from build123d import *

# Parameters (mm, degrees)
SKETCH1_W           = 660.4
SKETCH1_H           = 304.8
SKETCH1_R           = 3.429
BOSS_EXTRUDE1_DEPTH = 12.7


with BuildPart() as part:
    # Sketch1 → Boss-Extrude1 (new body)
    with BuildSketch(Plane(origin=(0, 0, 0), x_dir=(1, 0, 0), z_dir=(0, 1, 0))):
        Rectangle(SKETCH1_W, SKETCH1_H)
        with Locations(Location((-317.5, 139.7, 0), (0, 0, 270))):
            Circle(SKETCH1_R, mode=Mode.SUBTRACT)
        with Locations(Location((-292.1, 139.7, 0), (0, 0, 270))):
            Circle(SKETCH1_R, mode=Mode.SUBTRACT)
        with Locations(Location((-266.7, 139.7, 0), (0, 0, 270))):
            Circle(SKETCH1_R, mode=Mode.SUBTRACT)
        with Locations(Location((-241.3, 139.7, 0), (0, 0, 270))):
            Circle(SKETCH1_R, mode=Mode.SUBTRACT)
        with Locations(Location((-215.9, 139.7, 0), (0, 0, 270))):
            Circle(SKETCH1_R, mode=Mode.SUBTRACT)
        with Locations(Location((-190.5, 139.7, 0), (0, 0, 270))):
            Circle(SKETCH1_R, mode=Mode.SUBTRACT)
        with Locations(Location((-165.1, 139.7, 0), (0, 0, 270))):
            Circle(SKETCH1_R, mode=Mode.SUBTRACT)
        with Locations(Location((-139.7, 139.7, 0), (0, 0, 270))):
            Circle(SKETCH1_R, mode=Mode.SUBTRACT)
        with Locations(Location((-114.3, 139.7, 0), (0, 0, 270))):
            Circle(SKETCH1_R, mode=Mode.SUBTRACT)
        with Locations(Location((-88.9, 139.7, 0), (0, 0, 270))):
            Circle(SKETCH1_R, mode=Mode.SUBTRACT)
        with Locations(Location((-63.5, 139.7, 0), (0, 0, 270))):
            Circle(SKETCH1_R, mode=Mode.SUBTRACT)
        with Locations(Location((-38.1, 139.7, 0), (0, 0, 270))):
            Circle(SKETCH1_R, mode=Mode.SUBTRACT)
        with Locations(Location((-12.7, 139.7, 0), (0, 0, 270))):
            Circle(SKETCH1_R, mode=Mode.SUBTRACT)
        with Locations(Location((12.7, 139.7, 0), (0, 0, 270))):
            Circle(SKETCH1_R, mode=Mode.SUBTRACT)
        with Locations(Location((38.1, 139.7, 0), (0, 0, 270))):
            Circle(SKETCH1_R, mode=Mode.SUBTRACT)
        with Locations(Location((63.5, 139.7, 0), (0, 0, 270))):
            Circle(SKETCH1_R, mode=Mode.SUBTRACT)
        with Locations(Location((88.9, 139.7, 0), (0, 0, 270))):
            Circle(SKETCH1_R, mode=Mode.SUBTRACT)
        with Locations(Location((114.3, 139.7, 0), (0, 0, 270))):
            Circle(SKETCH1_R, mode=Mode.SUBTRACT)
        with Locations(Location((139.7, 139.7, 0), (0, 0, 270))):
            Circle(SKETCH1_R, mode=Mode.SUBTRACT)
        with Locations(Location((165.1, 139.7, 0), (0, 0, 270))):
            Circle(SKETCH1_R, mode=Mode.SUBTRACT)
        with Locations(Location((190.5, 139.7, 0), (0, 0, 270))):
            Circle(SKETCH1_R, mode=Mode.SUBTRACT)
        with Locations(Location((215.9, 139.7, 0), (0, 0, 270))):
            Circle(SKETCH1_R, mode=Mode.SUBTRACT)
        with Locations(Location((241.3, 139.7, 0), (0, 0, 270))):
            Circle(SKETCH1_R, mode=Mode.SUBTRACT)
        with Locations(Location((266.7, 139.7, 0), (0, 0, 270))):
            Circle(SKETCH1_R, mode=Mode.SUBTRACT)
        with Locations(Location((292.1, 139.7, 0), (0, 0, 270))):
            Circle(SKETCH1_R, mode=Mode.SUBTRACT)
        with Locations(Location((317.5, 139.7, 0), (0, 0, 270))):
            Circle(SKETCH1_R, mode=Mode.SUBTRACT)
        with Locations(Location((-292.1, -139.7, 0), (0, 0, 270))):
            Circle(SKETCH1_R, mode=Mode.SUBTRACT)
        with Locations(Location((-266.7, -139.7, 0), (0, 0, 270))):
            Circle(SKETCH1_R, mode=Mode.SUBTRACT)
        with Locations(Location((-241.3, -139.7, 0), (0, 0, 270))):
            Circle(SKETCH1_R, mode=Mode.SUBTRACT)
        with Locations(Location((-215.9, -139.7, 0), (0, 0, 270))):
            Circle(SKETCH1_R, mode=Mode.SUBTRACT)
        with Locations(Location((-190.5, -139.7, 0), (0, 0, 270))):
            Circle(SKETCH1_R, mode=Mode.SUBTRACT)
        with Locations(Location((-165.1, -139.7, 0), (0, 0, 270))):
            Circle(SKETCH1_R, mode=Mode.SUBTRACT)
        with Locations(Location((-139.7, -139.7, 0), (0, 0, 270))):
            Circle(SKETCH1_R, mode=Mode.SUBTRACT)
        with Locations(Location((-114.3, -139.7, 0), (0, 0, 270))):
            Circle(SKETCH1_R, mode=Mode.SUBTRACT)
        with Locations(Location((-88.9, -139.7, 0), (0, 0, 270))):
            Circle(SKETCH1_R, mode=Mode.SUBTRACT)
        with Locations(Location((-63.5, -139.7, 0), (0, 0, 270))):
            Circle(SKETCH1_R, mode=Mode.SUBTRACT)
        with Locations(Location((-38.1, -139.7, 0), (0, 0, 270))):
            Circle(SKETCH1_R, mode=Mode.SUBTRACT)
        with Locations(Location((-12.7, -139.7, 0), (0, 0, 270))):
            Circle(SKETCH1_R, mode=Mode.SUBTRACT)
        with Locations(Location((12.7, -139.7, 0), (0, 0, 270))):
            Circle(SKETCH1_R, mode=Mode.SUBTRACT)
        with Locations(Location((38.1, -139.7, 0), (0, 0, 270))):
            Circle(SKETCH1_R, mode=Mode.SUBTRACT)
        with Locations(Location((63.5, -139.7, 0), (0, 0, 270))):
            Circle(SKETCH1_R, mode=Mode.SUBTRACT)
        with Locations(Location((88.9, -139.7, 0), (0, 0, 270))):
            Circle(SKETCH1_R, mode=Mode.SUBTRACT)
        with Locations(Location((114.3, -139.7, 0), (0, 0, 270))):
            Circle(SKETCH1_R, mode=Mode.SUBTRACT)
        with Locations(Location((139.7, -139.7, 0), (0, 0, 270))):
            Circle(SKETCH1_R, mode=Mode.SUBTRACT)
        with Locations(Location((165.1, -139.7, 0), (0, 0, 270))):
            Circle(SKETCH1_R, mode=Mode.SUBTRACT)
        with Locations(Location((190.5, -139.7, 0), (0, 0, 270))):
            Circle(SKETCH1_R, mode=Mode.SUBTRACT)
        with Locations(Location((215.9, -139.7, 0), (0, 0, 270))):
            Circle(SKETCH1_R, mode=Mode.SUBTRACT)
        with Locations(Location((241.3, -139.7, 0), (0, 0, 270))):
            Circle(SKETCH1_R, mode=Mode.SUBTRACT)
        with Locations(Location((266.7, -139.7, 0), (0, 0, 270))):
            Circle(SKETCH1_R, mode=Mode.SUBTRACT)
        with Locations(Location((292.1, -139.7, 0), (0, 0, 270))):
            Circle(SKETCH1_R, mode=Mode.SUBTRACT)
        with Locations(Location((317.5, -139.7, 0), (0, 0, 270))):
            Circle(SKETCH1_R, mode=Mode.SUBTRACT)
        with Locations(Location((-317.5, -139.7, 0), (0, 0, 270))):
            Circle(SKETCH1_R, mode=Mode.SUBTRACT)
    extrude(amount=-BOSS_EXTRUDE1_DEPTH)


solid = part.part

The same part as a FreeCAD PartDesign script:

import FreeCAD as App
import Part
import Sketcher
from FreeCAD import Vector
Q = App.Units.Quantity


def add_polygon(sketch, points):
    """Adds a closed chain of lines whose ends are joined by coincident constraints."""
    first, n = sketch.GeometryCount, len(points)
    for a, b in zip(points, points[1:] + points[:1]):
        sketch.addGeometry(Part.LineSegment(App.Vector(*a, 0), App.Vector(*b, 0)), False)
    for i in range(n):
        sketch.addConstraint(Sketcher.Constraint("Coincident", first + i, 2, first + (i + 1) % n, 1))

doc = App.newDocument("Part")
params = doc.addObject("Spreadsheet::Sheet", "Params")
for row, (alias, value) in enumerate([
    ("sketch1_diameter", "0.27 in"),
    ("sketch1_width", "26 in"),
    ("sketch1_height", "12 in"),
    ("pad1_length", "0.5 in"),
], start=1):
    params.set(f"A{row}", alias)
    params.set(f"B{row}", "=" + value)
    params.setAlias(f"B{row}", alias)

body = doc.addObject("PartDesign::Body", "Body")

sketch1 = body.newObject("Sketcher::SketchObject", "Sketch")
sketch1.AttachmentSupport = (doc.getObject("XZ_Plane"), [""])
sketch1.MapMode = "FlatFace"
add_polygon(sketch1, [(-330.2, -152.4), (-330.2, 152.4), (330.2, 152.4), (330.2, -152.4)])
sketch1.addGeometry(Part.Circle(Vector(-317.5, 139.7, 0), Vector(0, 0, 1), 3.4), False)
sketch1.addGeometry(Part.Circle(Vector(-292.1, 139.7, 0), Vector(0, 0, 1), 3.4), False)
sketch1.addGeometry(Part.Circle(Vector(-266.7, 139.7, 0), Vector(0, 0, 1), 3.4), False)
sketch1.addGeometry(Part.Circle(Vector(-241.3, 139.7, 0), Vector(0, 0, 1), 3.4), False)
sketch1.addGeometry(Part.Circle(Vector(-215.9, 139.7, 0), Vector(0, 0, 1), 3.4), False)
sketch1.addGeometry(Part.Circle(Vector(-190.5, 139.7, 0), Vector(0, 0, 1), 3.4), False)
sketch1.addGeometry(Part.Circle(Vector(-165.1, 139.7, 0), Vector(0, 0, 1), 3.4), False)
sketch1.addGeometry(Part.Circle(Vector(-139.7, 139.7, 0), Vector(0, 0, 1), 3.4), False)
sketch1.addGeometry(Part.Circle(Vector(-114.3, 139.7, 0), Vector(0, 0, 1), 3.4), False)
sketch1.addGeometry(Part.Circle(Vector(-88.9, 139.7, 0), Vector(0, 0, 1), 3.4), False)
sketch1.addGeometry(Part.Circle(Vector(-63.5, 139.7, 0), Vector(0, 0, 1), 3.4), False)
sketch1.addGeometry(Part.Circle(Vector(-38.1, 139.7, 0), Vector(0, 0, 1), 3.4), False)
sketch1.addGeometry(Part.Circle(Vector(-12.7, 139.7, 0), Vector(0, 0, 1), 3.4), False)
sketch1.addGeometry(Part.Circle(Vector(12.7, 139.7, 0), Vector(0, 0, 1), 3.4), False)
sketch1.addGeometry(Part.Circle(Vector(38.1, 139.7, 0), Vector(0, 0, 1), 3.4), False)
sketch1.addGeometry(Part.Circle(Vector(63.5, 139.7, 0), Vector(0, 0, 1), 3.4), False)
sketch1.addGeometry(Part.Circle(Vector(88.9, 139.7, 0), Vector(0, 0, 1), 3.4), False)
sketch1.addGeometry(Part.Circle(Vector(114.3, 139.7, 0), Vector(0, 0, 1), 3.4), False)
sketch1.addGeometry(Part.Circle(Vector(139.7, 139.7, 0), Vector(0, 0, 1), 3.4), False)
sketch1.addGeometry(Part.Circle(Vector(165.1, 139.7, 0), Vector(0, 0, 1), 3.4), False)
sketch1.addGeometry(Part.Circle(Vector(190.5, 139.7, 0), Vector(0, 0, 1), 3.4), False)
sketch1.addGeometry(Part.Circle(Vector(215.9, 139.7, 0), Vector(0, 0, 1), 3.4), False)
sketch1.addGeometry(Part.Circle(Vector(241.3, 139.7, 0), Vector(0, 0, 1), 3.4), False)
sketch1.addGeometry(Part.Circle(Vector(266.7, 139.7, 0), Vector(0, 0, 1), 3.4), False)
sketch1.addGeometry(Part.Circle(Vector(292.1, 139.7, 0), Vector(0, 0, 1), 3.4), False)
sketch1.addGeometry(Part.Circle(Vector(317.5, 139.7, 0), Vector(0, 0, 1), 3.4), False)
sketch1.addGeometry(Part.Circle(Vector(-317.5, -139.7, 0), Vector(0, 0, 1), 3.4), False)
sketch1.addGeometry(Part.Circle(Vector(-292.1, -139.7, 0), Vector(0, 0, 1), 3.4), False)
sketch1.addGeometry(Part.Circle(Vector(-266.7, -139.7, 0), Vector(0, 0, 1), 3.4), False)
sketch1.addGeometry(Part.Circle(Vector(-241.3, -139.7, 0), Vector(0, 0, 1), 3.4), False)
sketch1.addGeometry(Part.Circle(Vector(-215.9, -139.7, 0), Vector(0, 0, 1), 3.4), False)
sketch1.addGeometry(Part.Circle(Vector(-190.5, -139.7, 0), Vector(0, 0, 1), 3.4), False)
sketch1.addGeometry(Part.Circle(Vector(-165.1, -139.7, 0), Vector(0, 0, 1), 3.4), False)
sketch1.addGeometry(Part.Circle(Vector(-139.7, -139.7, 0), Vector(0, 0, 1), 3.4), False)
sketch1.addGeometry(Part.Circle(Vector(-114.3, -139.7, 0), Vector(0, 0, 1), 3.4), False)
sketch1.addGeometry(Part.Circle(Vector(-88.9, -139.7, 0), Vector(0, 0, 1), 3.4), False)
sketch1.addGeometry(Part.Circle(Vector(-63.5, -139.7, 0), Vector(0, 0, 1), 3.4), False)
sketch1.addGeometry(Part.Circle(Vector(-38.1, -139.7, 0), Vector(0, 0, 1), 3.4), False)
sketch1.addGeometry(Part.Circle(Vector(-12.7, -139.7, 0), Vector(0, 0, 1), 3.4), False)
sketch1.addGeometry(Part.Circle(Vector(12.7, -139.7, 0), Vector(0, 0, 1), 3.4), False)
sketch1.addGeometry(Part.Circle(Vector(38.1, -139.7, 0), Vector(0, 0, 1), 3.4), False)
sketch1.addGeometry(Part.Circle(Vector(63.5, -139.7, 0), Vector(0, 0, 1), 3.4), False)
sketch1.addGeometry(Part.Circle(Vector(88.9, -139.7, 0), Vector(0, 0, 1), 3.4), False)
sketch1.addGeometry(Part.Circle(Vector(114.3, -139.7, 0), Vector(0, 0, 1), 3.4), False)
sketch1.addGeometry(Part.Circle(Vector(139.7, -139.7, 0), Vector(0, 0, 1), 3.4), False)
sketch1.addGeometry(Part.Circle(Vector(165.1, -139.7, 0), Vector(0, 0, 1), 3.4), False)
sketch1.addGeometry(Part.Circle(Vector(190.5, -139.7, 0), Vector(0, 0, 1), 3.4), False)
sketch1.addGeometry(Part.Circle(Vector(215.9, -139.7, 0), Vector(0, 0, 1), 3.4), False)
sketch1.addGeometry(Part.Circle(Vector(241.3, -139.7, 0), Vector(0, 0, 1), 3.4), False)
sketch1.addGeometry(Part.Circle(Vector(266.7, -139.7, 0), Vector(0, 0, 1), 3.4), False)
sketch1.addGeometry(Part.Circle(Vector(292.1, -139.7, 0), Vector(0, 0, 1), 3.4), False)
sketch1.addGeometry(Part.Circle(Vector(317.5, -139.7, 0), Vector(0, 0, 1), 3.4), False)
sketch1.addConstraint([
    Sketcher.Constraint("Vertical", 0),
    Sketcher.Constraint("Horizontal", 1),
    Sketcher.Constraint("Vertical", 2),
    Sketcher.Constraint("Horizontal", 3),
    Sketcher.Constraint("Equal", 4, 5),
    Sketcher.Constraint("Equal", 5, 6),
    Sketcher.Constraint("Equal", 6, 7),
    Sketcher.Constraint("Equal", 7, 8),
    Sketcher.Constraint("Equal", 8, 9),
    Sketcher.Constraint("Equal", 9, 10),
    Sketcher.Constraint("Equal", 10, 11),
    Sketcher.Constraint("Equal", 11, 12),
    Sketcher.Constraint("Equal", 12, 13),
    Sketcher.Constraint("Equal", 13, 14),
    Sketcher.Constraint("Equal", 14, 15),
    Sketcher.Constraint("Equal", 15, 16),
    Sketcher.Constraint("Equal", 16, 17),
    Sketcher.Constraint("Equal", 17, 18),
    Sketcher.Constraint("Equal", 18, 19),
    Sketcher.Constraint("Equal", 19, 20),
    Sketcher.Constraint("Equal", 20, 21),
    Sketcher.Constraint("Equal", 21, 22),
    Sketcher.Constraint("Equal", 22, 23),
    Sketcher.Constraint("Equal", 23, 24),
    Sketcher.Constraint("Equal", 24, 25),
    Sketcher.Constraint("Equal", 25, 26),
    Sketcher.Constraint("Equal", 26, 27),
    Sketcher.Constraint("Equal", 27, 28),
    Sketcher.Constraint("Equal", 28, 29),
    Sketcher.Constraint("Equal", 29, 30),
    Sketcher.Constraint("Equal", 30, 31),
    Sketcher.Constraint("Equal", 31, 32),
    Sketcher.Constraint("Equal", 32, 33),
    Sketcher.Constraint("Equal", 33, 34),
    Sketcher.Constraint("Equal", 34, 35),
    Sketcher.Constraint("Equal", 35, 36),
    Sketcher.Constraint("Equal", 36, 37),
    Sketcher.Constraint("Equal", 37, 38),
    Sketcher.Constraint("Equal", 38, 39),
    Sketcher.Constraint("Equal", 39, 40),
    Sketcher.Constraint("Equal", 40, 41),
    Sketcher.Constraint("Equal", 41, 42),
    Sketcher.Constraint("Equal", 42, 43),
    Sketcher.Constraint("Equal", 43, 44),
    Sketcher.Constraint("Equal", 44, 45),
    Sketcher.Constraint("Equal", 45, 46),
    Sketcher.Constraint("Equal", 46, 47),
    Sketcher.Constraint("Equal", 47, 48),
    Sketcher.Constraint("Equal", 48, 49),
    Sketcher.Constraint("Equal", 49, 50),
    Sketcher.Constraint("Equal", 50, 51),
    Sketcher.Constraint("Equal", 51, 52),
    Sketcher.Constraint("Equal", 52, 53),
    Sketcher.Constraint("Equal", 53, 54),
    Sketcher.Constraint("Equal", 54, 55),
    Sketcher.Constraint("Symmetric", 29, 3, 30, 3, -1, 1),
    Sketcher.Constraint("Symmetric", 28, 3, 31, 3, -1, 1),
    Sketcher.Constraint("Symmetric", 27, 3, 32, 3, -1, 1),
    Sketcher.Constraint("Symmetric", 26, 3, 33, 3, -1, 1),
    Sketcher.Constraint("Symmetric", 25, 3, 34, 3, -1, 1),
    Sketcher.Constraint("Symmetric", 24, 3, 35, 3, -1, 1),
    Sketcher.Constraint("Symmetric", 23, 3, 36, 3, -1, 1),
    Sketcher.Constraint("Symmetric", 22, 3, 37, 3, -1, 1),
    Sketcher.Constraint("Symmetric", 21, 3, 38, 3, -1, 1),
    Sketcher.Constraint("Symmetric", 20, 3, 39, 3, -1, 1),
    Sketcher.Constraint("Symmetric", 19, 3, 40, 3, -1, 1),
    Sketcher.Constraint("Symmetric", 18, 3, 41, 3, -1, 1),
    Sketcher.Constraint("Symmetric", 17, 3, 42, 3, -1, 1),
    Sketcher.Constraint("Symmetric", 16, 3, 43, 3, -1, 1),
    Sketcher.Constraint("Symmetric", 15, 3, 44, 3, -1, 1),
    Sketcher.Constraint("Symmetric", 14, 3, 45, 3, -1, 1),
    Sketcher.Constraint("Symmetric", 13, 3, 46, 3, -1, 1),
    Sketcher.Constraint("Symmetric", 12, 3, 47, 3, -1, 1),
    Sketcher.Constraint("Symmetric", 11, 3, 48, 3, -1, 1),
    Sketcher.Constraint("Symmetric", 10, 3, 49, 3, -1, 1),
    Sketcher.Constraint("Symmetric", 9, 3, 50, 3, -1, 1),
    Sketcher.Constraint("Symmetric", 8, 3, 51, 3, -1, 1),
    Sketcher.Constraint("Symmetric", 7, 3, 52, 3, -1, 1),
    Sketcher.Constraint("Symmetric", 6, 3, 53, 3, -1, 1),
    Sketcher.Constraint("Symmetric", 5, 3, 54, 3, -1, 1),
    Sketcher.Constraint("Symmetric", 4, 3, 55, 3, -1, 1),
    Sketcher.Constraint("Symmetric", 0, 2, 2, 2, -1, 1),
    Sketcher.Constraint("Symmetric", 16, 3, 17, 3, -2),
    Sketcher.Constraint("Symmetric", 15, 3, 18, 3, -2),
    Sketcher.Constraint("Symmetric", 14, 3, 19, 3, -2),
    Sketcher.Constraint("Symmetric", 13, 3, 20, 3, -2),
    Sketcher.Constraint("Symmetric", 12, 3, 21, 3, -2),
    Sketcher.Constraint("Symmetric", 11, 3, 22, 3, -2),
    Sketcher.Constraint("Symmetric", 10, 3, 23, 3, -2),
    Sketcher.Constraint("Symmetric", 9, 3, 24, 3, -2),
    Sketcher.Constraint("Symmetric", 8, 3, 25, 3, -2),
    Sketcher.Constraint("Symmetric", 7, 3, 26, 3, -2),
    Sketcher.Constraint("Symmetric", 6, 3, 27, 3, -2),
    Sketcher.Constraint("Symmetric", 5, 3, 28, 3, -2),
    Sketcher.Constraint("Symmetric", 4, 3, 29, 3, -2),
    Sketcher.Constraint("Horizontal", 4, 3, 5, 3),
    Sketcher.Constraint("Horizontal", 5, 3, 6, 3),
    Sketcher.Constraint("Horizontal", 6, 3, 7, 3),
    Sketcher.Constraint("Horizontal", 7, 3, 8, 3),
    Sketcher.Constraint("Horizontal", 8, 3, 9, 3),
    Sketcher.Constraint("Horizontal", 9, 3, 10, 3),
    Sketcher.Constraint("Horizontal", 10, 3, 11, 3),
    Sketcher.Constraint("Horizontal", 11, 3, 12, 3),
    Sketcher.Constraint("Horizontal", 12, 3, 13, 3),
    Sketcher.Constraint("Horizontal", 13, 3, 14, 3),
    Sketcher.Constraint("Horizontal", 14, 3, 15, 3),
    Sketcher.Constraint("Horizontal", 15, 3, 16, 3),
    Sketcher.Constraint("Diameter", 4, Q("0.27 in")),
    Sketcher.Constraint("DistanceX", 1, 1, 1, 2, Q("26 in")),
    Sketcher.Constraint("DistanceY", 0, 1, 0, 2, Q("12 in")),
    Sketcher.Constraint("DistanceX", 4, 3, 5, 3, Q("1 in")),
    Sketcher.Constraint("DistanceX", 5, 3, 6, 3, Q("1 in")),
    Sketcher.Constraint("DistanceX", 6, 3, 7, 3, Q("1 in")),
    Sketcher.Constraint("DistanceX", 7, 3, 8, 3, Q("1 in")),
    Sketcher.Constraint("DistanceX", 8, 3, 9, 3, Q("1 in")),
    Sketcher.Constraint("DistanceX", 9, 3, 10, 3, Q("1 in")),
    Sketcher.Constraint("DistanceX", 10, 3, 11, 3, Q("1 in")),
    Sketcher.Constraint("DistanceX", 11, 3, 12, 3, Q("1 in")),
    Sketcher.Constraint("DistanceX", 12, 3, 13, 3, Q("1 in")),
    Sketcher.Constraint("DistanceX", 13, 3, 14, 3, Q("1 in")),
    Sketcher.Constraint("DistanceX", 14, 3, 15, 3, Q("1 in")),
    Sketcher.Constraint("DistanceX", 15, 3, 16, 3, Q("1 in")),
    Sketcher.Constraint("DistanceX", 16, 3, 17, 3, Q("1 in")),
    Sketcher.Constraint("DistanceY", 30, 3, 4, 3, Q("11 in")),
])
sketch1.setExpression("Constraints[111]", "Params.sketch1_diameter")
sketch1.setExpression("Constraints[112]", "Params.sketch1_width")
sketch1.setExpression("Constraints[113]", "Params.sketch1_height")
pad1 = body.newObject("PartDesign::Pad", "Pad")
pad1.Profile = sketch1
pad1.setExpression("Length", "Params.pad1_length")

doc.recompute()
